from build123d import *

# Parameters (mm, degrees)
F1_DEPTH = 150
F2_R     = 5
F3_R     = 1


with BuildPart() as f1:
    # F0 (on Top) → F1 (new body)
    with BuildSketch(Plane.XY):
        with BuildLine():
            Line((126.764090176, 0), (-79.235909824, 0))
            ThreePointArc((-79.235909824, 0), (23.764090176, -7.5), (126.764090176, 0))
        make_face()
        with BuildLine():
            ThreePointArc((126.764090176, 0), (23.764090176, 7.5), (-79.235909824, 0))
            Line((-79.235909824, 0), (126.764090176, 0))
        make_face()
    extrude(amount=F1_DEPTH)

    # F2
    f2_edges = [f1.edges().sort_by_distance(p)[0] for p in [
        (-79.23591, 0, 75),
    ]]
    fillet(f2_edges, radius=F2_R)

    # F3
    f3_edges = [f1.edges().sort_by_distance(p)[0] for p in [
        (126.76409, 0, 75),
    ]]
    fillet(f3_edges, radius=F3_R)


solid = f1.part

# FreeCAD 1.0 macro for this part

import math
import FreeCAD as App
import Part
import Sketcher

V = App.Vector


def edges_at(feature, points):
    """Names of the edges that pass closest to the given points."""
    edges = feature.Shape.Edges
    near = lambda p: min(range(len(edges)), key=lambda i: edges[i].distToShape(Part.Vertex(*p))[0])
    return sorted({f"Edge{near(p) + 1}" for p in points})

doc = App.newDocument("Part")
body = doc.addObject("PartDesign::Body", "Body")

# Sketch on XY plane
sketch1 = body.newObject("Sketcher::SketchObject", "Sketch")
sketch1.AttachmentSupport = (doc.getObject("XY_Plane"), [""])
sketch1.MapMode = "FlatFace"
sketch1.addGeometry(Part.ArcOfCircle(Part.Circle(V(24, 704, 0), V(0, 0, 1), 711), math.radians(-98.33), math.radians(-81.67)), False)
sketch1.addGeometry(Part.ArcOfCircle(Part.Circle(V(24, -704, 0), V(0, 0, 1), 711), math.radians(81.67), math.radians(98.33)), False)
sketch1.addConstraint(Sketcher.Constraint("Coincident", 0, 1, 1, 2))
sketch1.addConstraint(Sketcher.Constraint("Coincident", 1, 1, 0, 2))
sketch1.addConstraint(Sketcher.Constraint("Equal", 0, 1))
sketch1.addConstraint(Sketcher.Constraint("Symmetric", 0, 3, 1, 3, -1))
sketch1.addConstraint(Sketcher.Constraint("DistanceX", 0, 1, 1, 3, 103.0))
sketch1.addConstraint(Sketcher.Constraint("Radius", 0, 711.016667))
sketch1.addConstraint(Sketcher.Constraint("DistanceX", -1, 1, 0, 3, 23.76409))
pad1 = body.newObject("PartDesign::Pad", "Pad")
pad1.Profile = sketch1
pad1.Length = 150
doc.recompute()

fillet = body.newObject("PartDesign::Fillet", "Fillet")
fillet.Base = (pad1, edges_at(pad1, [(-79.236, 0, 75)]))
fillet.Radius = 5
doc.recompute()

fillet2 = body.newObject("PartDesign::Fillet", "Fillet001")
fillet2.Base = (fillet, edges_at(fillet, [(126.764, 0, 75)]))
fillet2.Radius = 1

doc.recompute()
